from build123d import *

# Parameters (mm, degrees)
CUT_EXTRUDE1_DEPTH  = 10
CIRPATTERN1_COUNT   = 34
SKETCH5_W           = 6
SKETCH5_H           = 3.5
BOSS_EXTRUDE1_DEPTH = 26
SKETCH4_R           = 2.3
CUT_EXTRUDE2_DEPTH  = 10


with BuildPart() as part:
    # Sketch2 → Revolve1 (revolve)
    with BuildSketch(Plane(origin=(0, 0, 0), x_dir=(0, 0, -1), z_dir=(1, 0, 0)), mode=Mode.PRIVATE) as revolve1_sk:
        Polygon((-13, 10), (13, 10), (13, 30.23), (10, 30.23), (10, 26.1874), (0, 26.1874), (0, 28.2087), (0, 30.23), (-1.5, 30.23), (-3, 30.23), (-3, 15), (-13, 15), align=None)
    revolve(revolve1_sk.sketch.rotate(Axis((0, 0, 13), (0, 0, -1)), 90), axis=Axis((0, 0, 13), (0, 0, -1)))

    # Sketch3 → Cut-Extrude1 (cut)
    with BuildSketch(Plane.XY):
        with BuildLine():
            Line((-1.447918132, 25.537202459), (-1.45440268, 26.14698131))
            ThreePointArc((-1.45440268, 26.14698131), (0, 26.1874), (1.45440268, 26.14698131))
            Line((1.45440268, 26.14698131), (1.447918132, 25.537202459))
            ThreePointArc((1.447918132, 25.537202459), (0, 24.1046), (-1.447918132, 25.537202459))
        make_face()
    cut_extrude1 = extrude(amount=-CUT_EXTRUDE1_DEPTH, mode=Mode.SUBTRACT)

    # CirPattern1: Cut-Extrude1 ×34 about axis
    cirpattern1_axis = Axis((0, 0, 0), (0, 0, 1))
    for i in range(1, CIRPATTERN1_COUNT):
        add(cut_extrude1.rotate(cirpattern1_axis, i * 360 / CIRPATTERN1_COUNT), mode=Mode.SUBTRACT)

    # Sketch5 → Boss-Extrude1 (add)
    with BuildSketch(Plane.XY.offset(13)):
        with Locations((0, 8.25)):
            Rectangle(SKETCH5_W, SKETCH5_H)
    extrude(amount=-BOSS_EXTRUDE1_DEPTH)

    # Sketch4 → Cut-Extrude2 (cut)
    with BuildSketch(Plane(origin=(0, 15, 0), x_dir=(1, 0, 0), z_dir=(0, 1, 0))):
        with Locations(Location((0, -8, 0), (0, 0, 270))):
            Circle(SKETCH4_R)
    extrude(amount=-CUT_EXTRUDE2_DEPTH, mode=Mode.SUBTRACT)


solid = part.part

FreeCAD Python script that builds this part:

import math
import FreeCAD as App
import Part
import Sketcher

doc = App.newDocument("Part")
params = doc.addObject("Spreadsheet::Sheet", "Params")
for row, (alias, value) in enumerate([
    ("sketch1_width", "5 mm"),
    ("sketch1_height", "26 mm"),
    ("sketch1_height2", "3 mm"),
    ("sketch1_width2", "20.23 mm"),
    ("revolution_angle", "360 deg"),
    ("pocket1_length", "10 mm"),
    ("sketch3_width", "6 mm"),
    ("sketch3_height", "3.5 mm"),
    ("pad1_length", "26 mm"),
    ("sketch4_diameter", "4.6 mm"),
    ("pocket2_length", "10 mm"),
], start=1):
    params.set(f"A{row}", alias)
    params.set(f"B{row}", "=" + value)
    params.setAlias(f"B{row}", alias)

body = doc.addObject("PartDesign::Body", "Body")

sketch1 = doc.addObject("Sketcher::SketchObject", "Sketch")
body.addObject(sketch1)
sketch1.AttachmentSupport = (doc.YZ_Plane, [""])
sketch1.MapMode = "FlatFace"
sketch1.addGeometry(Part.LineSegment(App.Vector(10, 13, 0), App.Vector(10, -13, 0)), False)
sketch1.addGeometry(Part.LineSegment(App.Vector(10, -13, 0), App.Vector(30.23, -13, 0)), False)
sketch1.addGeometry(Part.LineSegment(App.Vector(30.23, -13, 0), App.Vector(30.23, -10, 0)), False)
sketch1.addGeometry(Part.LineSegment(App.Vector(30.23, -10, 0), App.Vector(26.1874, -10, 0)), False)
sketch1.addGeometry(Part.LineSegment(App.Vector(26.1874, -10, 0), App.Vector(26.1874, 0, 0)), False)
sketch1.addGeometry(Part.LineSegment(App.Vector(26.1874, 0, 0), App.Vector(30.23, 0, 0)), False)
sketch1.addGeometry(Part.LineSegment(App.Vector(30.23, 0, 0), App.Vector(30.23, 3, 0)), False)
sketch1.addGeometry(Part.LineSegment(App.Vector(30.23, 3, 0), App.Vector(15, 3, 0)), False)
sketch1.addGeometry(Part.LineSegment(App.Vector(15, 3, 0), App.Vector(15, 13, 0)), False)
sketch1.addGeometry(Part.LineSegment(App.Vector(15, 13, 0), App.Vector(10, 13, 0)), False)
sketch1.addConstraint(Sketcher.Constraint("Coincident", 0, 2, 1, 1))
sketch1.addConstraint(Sketcher.Constraint("Coincident", 1, 2, 2, 1))
sketch1.addConstraint(Sketcher.Constraint("Coincident", 2, 2, 3, 1))
sketch1.addConstraint(Sketcher.Constraint("Coincident", 3, 2, 4, 1))
sketch1.addConstraint(Sketcher.Constraint("Coincident", 4, 2, 5, 1))
sketch1.addConstraint(Sketcher.Constraint("Coincident", 5, 2, 6, 1))
sketch1.addConstraint(Sketcher.Constraint("Coincident", 6, 2, 7, 1))
sketch1.addConstraint(Sketcher.Constraint("Coincident", 7, 2, 8, 1))
sketch1.addConstraint(Sketcher.Constraint("Coincident", 8, 2, 9, 1))
sketch1.addConstraint(Sketcher.Constraint("Coincident", 9, 2, 0, 1))
sketch1.addConstraint(Sketcher.Constraint("Vertical", 0))
sketch1.addConstraint(Sketcher.Constraint("Horizontal", 1))
sketch1.addConstraint(Sketcher.Constraint("Vertical", 2))
sketch1.addConstraint(Sketcher.Constraint("Horizontal", 3))
sketch1.addConstraint(Sketcher.Constraint("Vertical", 4))
sketch1.addConstraint(Sketcher.Constraint("Horizontal", 5))
sketch1.addConstraint(Sketcher.Constraint("Vertical", 6))
sketch1.addConstraint(Sketcher.Constraint("Horizontal", 7))
sketch1.addConstraint(Sketcher.Constraint("Vertical", 8))
sketch1.addConstraint(Sketcher.Constraint("Horizontal", 9))
sketch1.addConstraint(Sketcher.Constraint("PointOnObject", 4, 2, -1))
sketch1.addConstraint(Sketcher.Constraint("Vertical", 2, 2, 5, 2))
sketch1.addConstraint(Sketcher.Constraint("Equal", 2, 6))
sketch1.addConstraint(Sketcher.Constraint("Equal", 4, 8))
sketch1.addConstraint(Sketcher.Constraint("DistanceX", 9, 2, 9, 1, 5.0))
sketch1.addConstraint(Sketcher.Constraint("DistanceY", 0, 2, 0, 1, 26.0))
sketch1.addConstraint(Sketcher.Constraint("DistanceY", 2, 1, 2, 2, 3.0))
sketch1.addConstraint(Sketcher.Constraint("DistanceX", -1, 1, 0, 2, 10.0))
sketch1.addConstraint(Sketcher.Constraint("DistanceX", 1, 1, 1, 2, 20.23))
sketch1.addConstraint(Sketcher.Constraint("DistanceX", 3, 2, 3, 1, 4.0426))
sketch1.setExpression("Constraints[24]", "Params.sketch1_width")
sketch1.setExpression("Constraints[25]", "Params.sketch1_height")
sketch1.setExpression("Constraints[26]", "Params.sketch1_height2")
sketch1.setExpression("Constraints[28]", "Params.sketch1_width2")
revolution = doc.addObject("PartDesign::Revolution", "Revolution")
body.addObject(revolution)
revolution.Profile = sketch1
revolution.ReferenceAxis = (sketch1, ["V_Axis"])
revolution.setExpression("Angle", "Params.revolution_angle")

sketch2 = doc.addObject("Sketcher::SketchObject", "Sketch001")
body.addObject(sketch2)
sketch2.AttachmentSupport = (doc.XY_Plane, [""])
sketch2.MapMode = "FlatFace"
sketch2.addGeometry(Part.LineSegment(App.Vector(-1.454403, 26.146981, 0), App.Vector(-1.447918, 25.537202, 0)), False)
sketch2.addGeometry(Part.ArcOfCircle(Part.Circle(App.Vector(0, 25.5526, 0), App.Vector(0, 0, 1), 1.448), math.radians(-179.390725), math.radians(-0.609275)), False)
sketch2.addGeometry(Part.LineSegment(App.Vector(1.447918, 25.537202, 0), App.Vector(1.454403, 26.146981, 0)), False)
sketch2.addGeometry(Part.ArcOfCircle(Part.Circle(App.Vector(0, 0, 0), App.Vector(0, 0, 1), 26.1874), math.radians(86.816254), math.radians(93.183746)), False)
sketch2.addConstraint(Sketcher.Constraint("Tangent", 0, 2, 1, 1))
sketch2.addConstraint(Sketcher.Constraint("Tangent", 1, 2, 2, 1))
sketch2.addConstraint(Sketcher.Constraint("Coincident", 2, 2, 3, 1))
sketch2.addConstraint(Sketcher.Constraint("Coincident", 3, 2, 0, 1))
sketch2.addConstraint(Sketcher.Constraint("Coincident", 3, 3, -1, 1))
sketch2.addConstraint(Sketcher.Constraint("Symmetric", 0, 2, 1, 2, -2))
sketch2.addConstraint(Sketcher.Constraint("Radius", 1, 1.448))
sketch2.addConstraint(Sketcher.Constraint("Radius", 3, 26.1874))
sketch2.addConstraint(Sketcher.Constraint("DistanceY", -1, 1, 1, 3, 25.5526))
sketch2.addConstraint(Sketcher.Constraint("DistanceX", 0, 2, -1, 1, 1.447918))
pocket1 = doc.addObject("PartDesign::Pocket", "Pocket")
body.addObject(pocket1)
pocket1.Profile = sketch2
pocket1.setExpression("Length", "Params.pocket1_length")
doc.recompute()

polarpattern = doc.addObject("PartDesign::PolarPattern", "PolarPattern")
body.addObject(polarpattern)
polarpattern.Originals = [pocket1]
polarpattern.Axis = (doc.Z_Axis, [""])
polarpattern.Angle = 360
polarpattern.Occurrences = 34
body.Tip = polarpattern

sketch3 = doc.addObject("Sketcher::SketchObject", "Sketch002")
body.addObject(sketch3)
sketch3.AttachmentSupport = (doc.XY_Plane, [""])
sketch3.MapMode = "FlatFace"
sketch3.AttachmentOffset = App.Placement(App.Vector(0, 0, 13), App.Rotation())
sketch3.addGeometry(Part.LineSegment(App.Vector(-3, 10, 0), App.Vector(-3, 6.5, 0)), False)
sketch3.addGeometry(Part.LineSegment(App.Vector(-3, 6.5, 0), App.Vector(3, 6.5, 0)), False)
sketch3.addGeometry(Part.LineSegment(App.Vector(3, 6.5, 0), App.Vector(3, 10, 0)), False)
sketch3.addGeometry(Part.LineSegment(App.Vector(3, 10, 0), App.Vector(-3, 10, 0)), False)
sketch3.addConstraint(Sketcher.Constraint("Coincident", 0, 2, 1, 1))
sketch3.addConstraint(Sketcher.Constraint("Coincident", 1, 2, 2, 1))
sketch3.addConstraint(Sketcher.Constraint("Coincident", 2, 2, 3, 1))
sketch3.addConstraint(Sketcher.Constraint("Coincident", 3, 2, 0, 1))
sketch3.addConstraint(Sketcher.Constraint("Vertical", 0))
sketch3.addConstraint(Sketcher.Constraint("Horizontal", 1))
sketch3.addConstraint(Sketcher.Constraint("Vertical", 2))
sketch3.addConstraint(Sketcher.Constraint("Horizontal", 3))
sketch3.addConstraint(Sketcher.Constraint("DistanceX", 1, 1, 1, 2, 6.0))
sketch3.addConstraint(Sketcher.Constraint("DistanceY", 0, 2, 0, 1, 3.5))
sketch3.addConstraint(Sketcher.Constraint("DistanceX", 0, 2, -1, 1, 3.0))
sketch3.addConstraint(Sketcher.Constraint("DistanceY", -1, 1, 2, 2, 10.0))
sketch3.setExpression("Constraints[8]", "Params.sketch3_width")
sketch3.setExpression("Constraints[9]", "Params.sketch3_height")
pad1 = doc.addObject("PartDesign::Pad", "Pad")
body.addObject(pad1)
pad1.Profile = sketch3
pad1.setExpression("Length", "Params.pad1_length")
pad1.Reversed = True

sketch4 = doc.addObject("Sketcher::SketchObject", "Sketch003")
body.addObject(sketch4)
sketch4.AttachmentSupport = (doc.XZ_Plane, [""])
sketch4.MapMode = "FlatFace"
sketch4.AttachmentOffset = App.Placement(App.Vector(0, 0, -15), App.Rotation())
sketch4.addGeometry(Part.Circle(App.Vector(0, 8, 0), App.Vector(0, 0, 1), 2.3), False)
sketch4.addConstraint(Sketcher.Constraint("PointOnObject", 0, 3, -2))
sketch4.addConstraint(Sketcher.Constraint("Diameter", 0, 4.6))
sketch4.addConstraint(Sketcher.Constraint("DistanceY", -1, 1, 0, 3, 8.0))
sketch4.setExpression("Constraints[1]", "Params.sketch4_diameter")
pocket2 = doc.addObject("PartDesign::Pocket", "Pocket001")
body.addObject(pocket2)
pocket2.Profile = sketch4
pocket2.setExpression("Length", "Params.pocket2_length")
pocket2.Reversed = True

doc.recompute()
